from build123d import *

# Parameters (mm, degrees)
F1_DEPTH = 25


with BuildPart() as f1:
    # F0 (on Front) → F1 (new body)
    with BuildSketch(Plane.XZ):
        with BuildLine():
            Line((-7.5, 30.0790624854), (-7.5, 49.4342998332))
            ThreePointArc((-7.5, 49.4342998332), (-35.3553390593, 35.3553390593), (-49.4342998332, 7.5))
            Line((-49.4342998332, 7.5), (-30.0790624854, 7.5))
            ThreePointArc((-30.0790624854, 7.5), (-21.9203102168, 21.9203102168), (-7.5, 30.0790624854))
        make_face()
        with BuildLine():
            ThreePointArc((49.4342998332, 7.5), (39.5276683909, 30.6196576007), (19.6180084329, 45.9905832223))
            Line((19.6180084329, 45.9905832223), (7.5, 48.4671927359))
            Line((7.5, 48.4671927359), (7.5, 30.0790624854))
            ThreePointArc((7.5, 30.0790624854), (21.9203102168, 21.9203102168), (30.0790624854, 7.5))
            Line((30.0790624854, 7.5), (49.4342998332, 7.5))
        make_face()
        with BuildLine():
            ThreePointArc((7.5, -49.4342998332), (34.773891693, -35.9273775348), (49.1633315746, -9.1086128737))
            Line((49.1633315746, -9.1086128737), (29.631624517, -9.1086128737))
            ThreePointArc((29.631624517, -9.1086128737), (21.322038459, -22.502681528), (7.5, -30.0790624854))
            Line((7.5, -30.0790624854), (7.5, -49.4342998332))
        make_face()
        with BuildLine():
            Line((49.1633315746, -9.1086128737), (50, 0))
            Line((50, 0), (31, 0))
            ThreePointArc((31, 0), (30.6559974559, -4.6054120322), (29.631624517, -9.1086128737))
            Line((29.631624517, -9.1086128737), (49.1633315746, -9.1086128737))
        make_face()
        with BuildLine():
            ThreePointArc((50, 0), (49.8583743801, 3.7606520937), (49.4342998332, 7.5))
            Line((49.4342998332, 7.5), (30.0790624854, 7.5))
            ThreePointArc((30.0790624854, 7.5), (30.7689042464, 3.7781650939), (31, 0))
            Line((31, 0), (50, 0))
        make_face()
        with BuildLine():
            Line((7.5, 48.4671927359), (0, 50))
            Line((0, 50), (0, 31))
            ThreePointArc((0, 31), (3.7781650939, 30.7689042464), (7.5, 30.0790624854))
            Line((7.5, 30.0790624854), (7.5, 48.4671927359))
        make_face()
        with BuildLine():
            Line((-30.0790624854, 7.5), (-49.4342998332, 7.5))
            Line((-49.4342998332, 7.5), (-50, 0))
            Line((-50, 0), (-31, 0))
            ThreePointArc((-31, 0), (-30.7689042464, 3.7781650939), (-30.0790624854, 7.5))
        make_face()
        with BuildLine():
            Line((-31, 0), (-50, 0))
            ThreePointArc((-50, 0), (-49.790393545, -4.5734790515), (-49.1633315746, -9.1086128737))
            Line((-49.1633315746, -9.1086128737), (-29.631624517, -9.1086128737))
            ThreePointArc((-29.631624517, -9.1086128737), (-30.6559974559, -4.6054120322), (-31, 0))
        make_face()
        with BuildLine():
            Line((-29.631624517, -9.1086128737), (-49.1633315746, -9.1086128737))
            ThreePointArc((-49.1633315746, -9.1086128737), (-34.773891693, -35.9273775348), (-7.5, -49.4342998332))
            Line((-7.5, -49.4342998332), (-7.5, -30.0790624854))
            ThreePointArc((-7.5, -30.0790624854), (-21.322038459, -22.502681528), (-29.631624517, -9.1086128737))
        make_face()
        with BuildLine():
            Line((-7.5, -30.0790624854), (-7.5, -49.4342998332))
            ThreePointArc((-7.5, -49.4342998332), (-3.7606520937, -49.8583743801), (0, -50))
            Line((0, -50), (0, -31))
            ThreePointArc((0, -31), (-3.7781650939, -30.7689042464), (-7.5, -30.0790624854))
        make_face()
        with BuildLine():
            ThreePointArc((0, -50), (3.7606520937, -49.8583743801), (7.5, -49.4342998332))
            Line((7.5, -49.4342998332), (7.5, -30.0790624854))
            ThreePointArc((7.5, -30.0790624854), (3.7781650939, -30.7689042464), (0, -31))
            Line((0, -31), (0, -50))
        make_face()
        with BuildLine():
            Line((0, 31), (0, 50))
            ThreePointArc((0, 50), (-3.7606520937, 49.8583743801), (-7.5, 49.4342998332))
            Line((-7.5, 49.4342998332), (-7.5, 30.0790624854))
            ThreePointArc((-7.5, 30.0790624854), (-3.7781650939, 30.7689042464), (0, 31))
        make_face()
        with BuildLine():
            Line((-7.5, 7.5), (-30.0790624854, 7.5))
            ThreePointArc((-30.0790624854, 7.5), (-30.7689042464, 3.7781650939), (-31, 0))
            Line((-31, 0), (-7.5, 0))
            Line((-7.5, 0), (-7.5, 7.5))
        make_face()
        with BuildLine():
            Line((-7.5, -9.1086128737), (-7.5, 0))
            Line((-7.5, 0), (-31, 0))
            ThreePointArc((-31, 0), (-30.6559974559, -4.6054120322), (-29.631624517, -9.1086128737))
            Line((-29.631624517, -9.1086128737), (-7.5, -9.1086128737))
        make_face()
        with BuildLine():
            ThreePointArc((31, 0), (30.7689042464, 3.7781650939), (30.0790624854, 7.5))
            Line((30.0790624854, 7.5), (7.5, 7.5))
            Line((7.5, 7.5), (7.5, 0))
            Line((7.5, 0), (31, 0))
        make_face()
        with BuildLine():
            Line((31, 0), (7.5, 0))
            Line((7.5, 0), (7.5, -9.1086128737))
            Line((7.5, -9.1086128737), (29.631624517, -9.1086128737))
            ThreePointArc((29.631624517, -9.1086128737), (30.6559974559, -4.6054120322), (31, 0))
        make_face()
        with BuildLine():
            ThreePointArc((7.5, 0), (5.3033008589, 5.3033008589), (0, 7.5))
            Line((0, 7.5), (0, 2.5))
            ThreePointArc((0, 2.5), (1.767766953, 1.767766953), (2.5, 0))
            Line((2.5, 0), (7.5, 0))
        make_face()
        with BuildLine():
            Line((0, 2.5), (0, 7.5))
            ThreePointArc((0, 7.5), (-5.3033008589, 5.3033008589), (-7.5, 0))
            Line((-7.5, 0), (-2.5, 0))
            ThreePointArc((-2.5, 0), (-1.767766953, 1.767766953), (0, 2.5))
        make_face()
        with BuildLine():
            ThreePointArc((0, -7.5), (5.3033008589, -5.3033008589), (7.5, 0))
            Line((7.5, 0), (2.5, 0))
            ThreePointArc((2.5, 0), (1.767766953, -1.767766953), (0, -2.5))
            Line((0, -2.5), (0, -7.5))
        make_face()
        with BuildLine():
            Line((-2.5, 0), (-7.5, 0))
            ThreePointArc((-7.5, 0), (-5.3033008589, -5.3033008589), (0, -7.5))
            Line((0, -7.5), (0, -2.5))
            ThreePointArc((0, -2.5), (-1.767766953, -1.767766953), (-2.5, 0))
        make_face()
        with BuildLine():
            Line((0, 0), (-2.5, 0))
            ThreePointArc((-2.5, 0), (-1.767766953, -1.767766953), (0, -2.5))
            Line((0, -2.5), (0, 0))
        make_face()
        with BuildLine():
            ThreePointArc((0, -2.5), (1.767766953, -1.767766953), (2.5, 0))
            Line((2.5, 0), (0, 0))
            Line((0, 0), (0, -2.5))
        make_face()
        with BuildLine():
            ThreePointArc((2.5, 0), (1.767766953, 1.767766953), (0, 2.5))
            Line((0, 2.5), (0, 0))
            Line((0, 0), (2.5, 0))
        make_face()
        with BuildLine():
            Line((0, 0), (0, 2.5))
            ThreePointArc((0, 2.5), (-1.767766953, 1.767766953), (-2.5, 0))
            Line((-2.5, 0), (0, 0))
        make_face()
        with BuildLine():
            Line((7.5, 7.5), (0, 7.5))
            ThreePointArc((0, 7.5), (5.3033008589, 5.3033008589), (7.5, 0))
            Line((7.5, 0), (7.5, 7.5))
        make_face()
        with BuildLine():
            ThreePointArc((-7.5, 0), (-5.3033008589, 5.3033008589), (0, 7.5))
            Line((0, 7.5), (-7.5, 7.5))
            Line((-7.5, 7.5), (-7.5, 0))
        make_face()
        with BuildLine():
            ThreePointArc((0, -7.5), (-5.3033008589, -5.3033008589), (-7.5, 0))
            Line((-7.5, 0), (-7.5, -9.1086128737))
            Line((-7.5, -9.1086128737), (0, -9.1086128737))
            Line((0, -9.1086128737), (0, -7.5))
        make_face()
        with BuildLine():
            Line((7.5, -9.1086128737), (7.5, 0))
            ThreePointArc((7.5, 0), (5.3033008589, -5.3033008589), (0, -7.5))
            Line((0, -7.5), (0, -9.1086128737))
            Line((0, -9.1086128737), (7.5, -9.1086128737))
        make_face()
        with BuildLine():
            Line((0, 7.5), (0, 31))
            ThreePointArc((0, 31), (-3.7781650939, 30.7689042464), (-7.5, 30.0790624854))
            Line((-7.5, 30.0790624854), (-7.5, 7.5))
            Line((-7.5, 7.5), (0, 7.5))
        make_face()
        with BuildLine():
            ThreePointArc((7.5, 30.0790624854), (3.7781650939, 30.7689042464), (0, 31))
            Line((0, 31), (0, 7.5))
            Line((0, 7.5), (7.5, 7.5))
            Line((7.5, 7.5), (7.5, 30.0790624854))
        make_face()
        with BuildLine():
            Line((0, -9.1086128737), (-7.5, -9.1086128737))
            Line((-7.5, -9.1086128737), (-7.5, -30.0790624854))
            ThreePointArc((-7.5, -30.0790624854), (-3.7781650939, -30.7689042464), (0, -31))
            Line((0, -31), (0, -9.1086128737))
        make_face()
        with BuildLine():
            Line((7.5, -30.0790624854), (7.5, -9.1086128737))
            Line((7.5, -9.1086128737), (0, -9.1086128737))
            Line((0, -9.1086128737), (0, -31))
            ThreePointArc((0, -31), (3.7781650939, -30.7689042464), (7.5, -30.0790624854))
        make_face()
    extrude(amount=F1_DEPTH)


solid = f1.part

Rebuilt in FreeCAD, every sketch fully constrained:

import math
import FreeCAD as App
import Part
import Sketcher
Q = App.Units.Quantity

doc = App.newDocument("Part")
params = doc.addObject("Spreadsheet::Sheet", "Params")
for row, (alias, value) in enumerate([
    ("sketch1_radius", "50 mm"),
    ("sketch1_radius2", "31 mm"),
    ("pad1_length", "25 mm"),
], start=1):
    params.set(f"A{row}", alias)
    params.set(f"B{row}", "=" + value)
    params.setAlias(f"B{row}", alias)

body = doc.addObject("PartDesign::Body", "Body")

# Sketch on XZ plane
sketch1 = doc.addObject("Sketcher::SketchObject", "Sketch")
body.addObject(sketch1)
sketch1.AttachmentSupport = (doc.XZ_Plane, [""])
sketch1.MapMode = "FlatFace"
sketch1.addGeometry(Part.ArcOfCircle(Part.Circle(App.Vector(0, 0, 0), App.Vector(0, 0, 1), 50), math.radians(99), math.radians(171)), False)
sketch1.addGeometry(Part.LineSegment(App.Vector(-49, 8, 0), App.Vector(-50, 0, 0)), False)
sketch1.addGeometry(Part.ArcOfCircle(Part.Circle(App.Vector(0, 0, 0), App.Vector(0, 0, 1), 50), math.radians(180), math.radians(190.5)), False)
sketch1.addGeometry(Part.ArcOfCircle(Part.Circle(App.Vector(0, 0, 0), App.Vector(0, 0, 1), 50), math.radians(-170), math.radians(-99)), False)
sketch1.addGeometry(Part.ArcOfCircle(Part.Circle(App.Vector(0, 0, 0), App.Vector(0, 0, 1), 50), math.radians(-98.63), math.radians(-90)), False)
sketch1.addGeometry(Part.ArcOfCircle(Part.Circle(App.Vector(0, 0, 0), App.Vector(0, 0, 1), 50), math.radians(-90), math.radians(-81.37)), False)
sketch1.addGeometry(Part.ArcOfCircle(Part.Circle(App.Vector(0, 0, 0), App.Vector(0, 0, 1), 50), math.radians(-81), math.radians(-10)), False)
sketch1.addGeometry(Part.LineSegment(App.Vector(49, -9, 0), App.Vector(50, 0, 0)), False)
sketch1.addGeometry(Part.ArcOfCircle(Part.Circle(App.Vector(0, 0, 0), App.Vector(0, 0, 1), 50), math.radians(0), math.radians(8.63)), False)
sketch1.addGeometry(Part.ArcOfCircle(Part.Circle(App.Vector(0, 0, 0), App.Vector(0, 0, 1), 50), math.radians(9), math.radians(67)), False)
sketch1.addGeometry(Part.LineSegment(App.Vector(20, 46, 0), App.Vector(8, 48, 0)), False)
sketch1.addGeometry(Part.LineSegment(App.Vector(8, 48, 0), App.Vector(0, 50, 0)), False)
sketch1.addGeometry(Part.ArcOfCircle(Part.Circle(App.Vector(0, 0, 0), App.Vector(0, 0, 1), 50), math.radians(90), math.radians(98.63)), False)
sketch1.addGeometry(Part.ArcOfCircle(Part.Circle(App.Vector(0, 0, 0), App.Vector(0, 0, 1), 31), math.radians(-76), math.radians(-17)), False)
sketch1.addGeometry(Part.LineSegment(App.Vector(8, -30, 0), App.Vector(8, -9, 0)), False)
sketch1.addGeometry(Part.LineSegment(App.Vector(8, -9, 0), App.Vector(30, -9, 0)), False)
sketch1.addGeometry(Part.ArcOfCircle(Part.Circle(App.Vector(0, 0, 0), App.Vector(0, 0, 1), 31), math.radians(-163), math.radians(-104)), False)
sketch1.addGeometry(Part.LineSegment(App.Vector(-30, -9, 0), App.Vector(-8, -9, 0)), False)
sketch1.addGeometry(Part.LineSegment(App.Vector(-8, -9, 0), App.Vector(-8, -30, 0)), False)
sketch1.addGeometry(Part.LineSegment(App.Vector(30, 8, 0), App.Vector(8, 8, 0)), False)
sketch1.addGeometry(Part.LineSegment(App.Vector(8, 8, 0), App.Vector(8, 30, 0)), False)
sketch1.addGeometry(Part.ArcOfCircle(Part.Circle(App.Vector(0, 0, 0), App.Vector(0, 0, 1), 31), math.radians(14), math.radians(76)), False)
sketch1.addGeometry(Part.LineSegment(App.Vector(-8, 8, 0), App.Vector(-30, 8, 0)), False)
sketch1.addGeometry(Part.ArcOfCircle(Part.Circle(App.Vector(0, 0, 0), App.Vector(0, 0, 1), 31), math.radians(104), math.radians(166)), False)
sketch1.addGeometry(Part.LineSegment(App.Vector(-8, 30, 0), App.Vector(-8, 8, 0)), False)
sketch1.addConstraint(Sketcher.Constraint("Coincident", 0, 2, 1, 1))
sketch1.addConstraint(Sketcher.Constraint("Coincident", 1, 2, 2, 1))
sketch1.addConstraint(Sketcher.Constraint("Tangent", 2, 2, 3, 1))
sketch1.addConstraint(Sketcher.Constraint("Tangent", 3, 2, 4, 1))
sketch1.addConstraint(Sketcher.Constraint("Tangent", 4, 2, 5, 1))
sketch1.addConstraint(Sketcher.Constraint("Tangent", 5, 2, 6, 1))
sketch1.addConstraint(Sketcher.Constraint("Coincident", 6, 2, 7, 1))
sketch1.addConstraint(Sketcher.Constraint("Coincident", 7, 2, 8, 1))
sketch1.addConstraint(Sketcher.Constraint("Tangent", 8, 2, 9, 1))
sketch1.addConstraint(Sketcher.Constraint("Coincident", 9, 2, 10, 1))
sketch1.addConstraint(Sketcher.Constraint("Coincident", 10, 2, 11, 1))
sketch1.addConstraint(Sketcher.Constraint("Coincident", 11, 2, 12, 1))
sketch1.addConstraint(Sketcher.Constraint("Tangent", 12, 2, 0, 1))
sketch1.addConstraint(Sketcher.Constraint("Coincident", 13, 1, 14, 1))
sketch1.addConstraint(Sketcher.Constraint("Coincident", 14, 2, 15, 1))
sketch1.addConstraint(Sketcher.Constraint("Coincident", 15, 2, 13, 2))
sketch1.addConstraint(Sketcher.Constraint("Coincident", 16, 1, 17, 1))
sketch1.addConstraint(Sketcher.Constraint("Coincident", 17, 2, 18, 1))
sketch1.addConstraint(Sketcher.Constraint("Coincident", 18, 2, 16, 2))
sketch1.addConstraint(Sketcher.Constraint("Coincident", 19, 2, 20, 1))
sketch1.addConstraint(Sketcher.Constraint("Coincident", 20, 2, 21, 2))
sketch1.addConstraint(Sketcher.Constraint("Coincident", 21, 1, 19, 1))
sketch1.addConstraint(Sketcher.Constraint("Coincident", 22, 2, 23, 2))
sketch1.addConstraint(Sketcher.Constraint("Coincident", 23, 1, 24, 1))
sketch1.addConstraint(Sketcher.Constraint("Coincident", 24, 2, 22, 1))
sketch1.addConstraint(Sketcher.Constraint("Vertical", 14))
sketch1.addConstraint(Sketcher.Constraint("Horizontal", 15))
sketch1.addConstraint(Sketcher.Constraint("Horizontal", 17))
sketch1.addConstraint(Sketcher.Constraint("Vertical", 18))
sketch1.addConstraint(Sketcher.Constraint("Horizontal", 19))
sketch1.addConstraint(Sketcher.Constraint("Vertical", 20))
sketch1.addConstraint(Sketcher.Constraint("Horizontal", 22))
sketch1.addConstraint(Sketcher.Constraint("Vertical", 24))
sketch1.addConstraint(Sketcher.Constraint("Coincident", 0, 3, -1, 1))
sketch1.addConstraint(Sketcher.Constraint("Coincident", 2, 3, -1, 1))
sketch1.addConstraint(Sketcher.Constraint("Coincident", 4, 3, -1, 1))
sketch1.addConstraint(Sketcher.Constraint("Coincident", 6, 3, -1, 1))
sketch1.addConstraint(Sketcher.Constraint("Coincident", 8, 3, -1, 1))
sketch1.addConstraint(Sketcher.Constraint("Coincident", 13, 3, -1, 1))
sketch1.addConstraint(Sketcher.Constraint("Coincident", 16, 3, -1, 1))
sketch1.addConstraint(Sketcher.Constraint("Coincident", 21, 3, -1, 1))
sketch1.addConstraint(Sketcher.Constraint("Coincident", 23, 3, -1, 1))
sketch1.addConstraint(Sketcher.Constraint("Equal", 0, 2))
sketch1.addConstraint(Sketcher.Constraint("Equal", 6, 8))
sketch1.addConstraint(Sketcher.Constraint("Equal", 8, 9))
sketch1.addConstraint(Sketcher.Constraint("Equal", 9, 12))
sketch1.addConstraint(Sketcher.Constraint("Equal", 13, 16))
sketch1.addConstraint(Sketcher.Constraint("Equal", 16, 21))
sketch1.addConstraint(Sketcher.Constraint("Equal", 21, 23))
sketch1.addConstraint(Sketcher.Constraint("Symmetric", 14, 2, 17, 2, -2))
sketch1.addConstraint(Sketcher.Constraint("Symmetric", 19, 2, 24, 2, -2))
sketch1.addConstraint(Sketcher.Constraint("PointOnObject", 1, 2, -1))
sketch1.addConstraint(Sketcher.Constraint("PointOnObject", 4, 2, -2))
sketch1.addConstraint(Sketcher.Constraint("PointOnObject", 7, 2, -1))
sketch1.addConstraint(Sketcher.Constraint("PointOnObject", 11, 2, -2))
sketch1.addConstraint(Sketcher.Constraint("Parallel", 10, 11))
sketch1.addConstraint(Sketcher.Constraint("Horizontal", 3, 2, 5, 2))
sketch1.addConstraint(Sketcher.Constraint("Horizontal", 2, 2, 6, 2))
sketch1.addConstraint(Sketcher.Constraint("Horizontal", 0, 2, 8, 2))
sketch1.addConstraint(Sketcher.Constraint("Horizontal", 6, 2, 14, 2))
sketch1.addConstraint(Sketcher.Constraint("Horizontal", 8, 2, 19, 2))
sketch1.addConstraint(Sketcher.Constraint("Vertical", 5, 2, 10, 2))
sketch1.addConstraint(Sketcher.Constraint("Vertical", 3, 2, 12, 2))
sketch1.addConstraint(Sketcher.Constraint("Vertical", 10, 2, 13, 1))
sketch1.addConstraint(Sketcher.Constraint("Vertical", 14, 2, 19, 2))
sketch1.addConstraint(Sketcher.Constraint("Equal", 22, 20))
sketch1.addConstraint(Sketcher.Constraint("Radius", 0, Q("50 mm")))
sketch1.addConstraint(Sketcher.Constraint("Radius", 13, Q("31 mm")))
sketch1.addConstraint(Sketcher.Constraint("DistanceX", 3, 2, 5, 2, Q("15 mm")))
sketch1.addConstraint(Sketcher.Constraint("DistanceY", 14, 1, 14, 2, Q("20.97045 mm")))
sketch1.addConstraint(Sketcher.Constraint("Distance", 11, Q("7.655031 mm")))
sketch1.setExpression("Constraints[66]", "Params.sketch1_radius")
sketch1.setExpression("Constraints[67]", "Params.sketch1_radius2")
pad1 = doc.addObject("PartDesign::Pad", "Pad")
body.addObject(pad1)
pad1.Profile = sketch1
pad1.setExpression("Length", "Params.pad1_length")

doc.recompute()
